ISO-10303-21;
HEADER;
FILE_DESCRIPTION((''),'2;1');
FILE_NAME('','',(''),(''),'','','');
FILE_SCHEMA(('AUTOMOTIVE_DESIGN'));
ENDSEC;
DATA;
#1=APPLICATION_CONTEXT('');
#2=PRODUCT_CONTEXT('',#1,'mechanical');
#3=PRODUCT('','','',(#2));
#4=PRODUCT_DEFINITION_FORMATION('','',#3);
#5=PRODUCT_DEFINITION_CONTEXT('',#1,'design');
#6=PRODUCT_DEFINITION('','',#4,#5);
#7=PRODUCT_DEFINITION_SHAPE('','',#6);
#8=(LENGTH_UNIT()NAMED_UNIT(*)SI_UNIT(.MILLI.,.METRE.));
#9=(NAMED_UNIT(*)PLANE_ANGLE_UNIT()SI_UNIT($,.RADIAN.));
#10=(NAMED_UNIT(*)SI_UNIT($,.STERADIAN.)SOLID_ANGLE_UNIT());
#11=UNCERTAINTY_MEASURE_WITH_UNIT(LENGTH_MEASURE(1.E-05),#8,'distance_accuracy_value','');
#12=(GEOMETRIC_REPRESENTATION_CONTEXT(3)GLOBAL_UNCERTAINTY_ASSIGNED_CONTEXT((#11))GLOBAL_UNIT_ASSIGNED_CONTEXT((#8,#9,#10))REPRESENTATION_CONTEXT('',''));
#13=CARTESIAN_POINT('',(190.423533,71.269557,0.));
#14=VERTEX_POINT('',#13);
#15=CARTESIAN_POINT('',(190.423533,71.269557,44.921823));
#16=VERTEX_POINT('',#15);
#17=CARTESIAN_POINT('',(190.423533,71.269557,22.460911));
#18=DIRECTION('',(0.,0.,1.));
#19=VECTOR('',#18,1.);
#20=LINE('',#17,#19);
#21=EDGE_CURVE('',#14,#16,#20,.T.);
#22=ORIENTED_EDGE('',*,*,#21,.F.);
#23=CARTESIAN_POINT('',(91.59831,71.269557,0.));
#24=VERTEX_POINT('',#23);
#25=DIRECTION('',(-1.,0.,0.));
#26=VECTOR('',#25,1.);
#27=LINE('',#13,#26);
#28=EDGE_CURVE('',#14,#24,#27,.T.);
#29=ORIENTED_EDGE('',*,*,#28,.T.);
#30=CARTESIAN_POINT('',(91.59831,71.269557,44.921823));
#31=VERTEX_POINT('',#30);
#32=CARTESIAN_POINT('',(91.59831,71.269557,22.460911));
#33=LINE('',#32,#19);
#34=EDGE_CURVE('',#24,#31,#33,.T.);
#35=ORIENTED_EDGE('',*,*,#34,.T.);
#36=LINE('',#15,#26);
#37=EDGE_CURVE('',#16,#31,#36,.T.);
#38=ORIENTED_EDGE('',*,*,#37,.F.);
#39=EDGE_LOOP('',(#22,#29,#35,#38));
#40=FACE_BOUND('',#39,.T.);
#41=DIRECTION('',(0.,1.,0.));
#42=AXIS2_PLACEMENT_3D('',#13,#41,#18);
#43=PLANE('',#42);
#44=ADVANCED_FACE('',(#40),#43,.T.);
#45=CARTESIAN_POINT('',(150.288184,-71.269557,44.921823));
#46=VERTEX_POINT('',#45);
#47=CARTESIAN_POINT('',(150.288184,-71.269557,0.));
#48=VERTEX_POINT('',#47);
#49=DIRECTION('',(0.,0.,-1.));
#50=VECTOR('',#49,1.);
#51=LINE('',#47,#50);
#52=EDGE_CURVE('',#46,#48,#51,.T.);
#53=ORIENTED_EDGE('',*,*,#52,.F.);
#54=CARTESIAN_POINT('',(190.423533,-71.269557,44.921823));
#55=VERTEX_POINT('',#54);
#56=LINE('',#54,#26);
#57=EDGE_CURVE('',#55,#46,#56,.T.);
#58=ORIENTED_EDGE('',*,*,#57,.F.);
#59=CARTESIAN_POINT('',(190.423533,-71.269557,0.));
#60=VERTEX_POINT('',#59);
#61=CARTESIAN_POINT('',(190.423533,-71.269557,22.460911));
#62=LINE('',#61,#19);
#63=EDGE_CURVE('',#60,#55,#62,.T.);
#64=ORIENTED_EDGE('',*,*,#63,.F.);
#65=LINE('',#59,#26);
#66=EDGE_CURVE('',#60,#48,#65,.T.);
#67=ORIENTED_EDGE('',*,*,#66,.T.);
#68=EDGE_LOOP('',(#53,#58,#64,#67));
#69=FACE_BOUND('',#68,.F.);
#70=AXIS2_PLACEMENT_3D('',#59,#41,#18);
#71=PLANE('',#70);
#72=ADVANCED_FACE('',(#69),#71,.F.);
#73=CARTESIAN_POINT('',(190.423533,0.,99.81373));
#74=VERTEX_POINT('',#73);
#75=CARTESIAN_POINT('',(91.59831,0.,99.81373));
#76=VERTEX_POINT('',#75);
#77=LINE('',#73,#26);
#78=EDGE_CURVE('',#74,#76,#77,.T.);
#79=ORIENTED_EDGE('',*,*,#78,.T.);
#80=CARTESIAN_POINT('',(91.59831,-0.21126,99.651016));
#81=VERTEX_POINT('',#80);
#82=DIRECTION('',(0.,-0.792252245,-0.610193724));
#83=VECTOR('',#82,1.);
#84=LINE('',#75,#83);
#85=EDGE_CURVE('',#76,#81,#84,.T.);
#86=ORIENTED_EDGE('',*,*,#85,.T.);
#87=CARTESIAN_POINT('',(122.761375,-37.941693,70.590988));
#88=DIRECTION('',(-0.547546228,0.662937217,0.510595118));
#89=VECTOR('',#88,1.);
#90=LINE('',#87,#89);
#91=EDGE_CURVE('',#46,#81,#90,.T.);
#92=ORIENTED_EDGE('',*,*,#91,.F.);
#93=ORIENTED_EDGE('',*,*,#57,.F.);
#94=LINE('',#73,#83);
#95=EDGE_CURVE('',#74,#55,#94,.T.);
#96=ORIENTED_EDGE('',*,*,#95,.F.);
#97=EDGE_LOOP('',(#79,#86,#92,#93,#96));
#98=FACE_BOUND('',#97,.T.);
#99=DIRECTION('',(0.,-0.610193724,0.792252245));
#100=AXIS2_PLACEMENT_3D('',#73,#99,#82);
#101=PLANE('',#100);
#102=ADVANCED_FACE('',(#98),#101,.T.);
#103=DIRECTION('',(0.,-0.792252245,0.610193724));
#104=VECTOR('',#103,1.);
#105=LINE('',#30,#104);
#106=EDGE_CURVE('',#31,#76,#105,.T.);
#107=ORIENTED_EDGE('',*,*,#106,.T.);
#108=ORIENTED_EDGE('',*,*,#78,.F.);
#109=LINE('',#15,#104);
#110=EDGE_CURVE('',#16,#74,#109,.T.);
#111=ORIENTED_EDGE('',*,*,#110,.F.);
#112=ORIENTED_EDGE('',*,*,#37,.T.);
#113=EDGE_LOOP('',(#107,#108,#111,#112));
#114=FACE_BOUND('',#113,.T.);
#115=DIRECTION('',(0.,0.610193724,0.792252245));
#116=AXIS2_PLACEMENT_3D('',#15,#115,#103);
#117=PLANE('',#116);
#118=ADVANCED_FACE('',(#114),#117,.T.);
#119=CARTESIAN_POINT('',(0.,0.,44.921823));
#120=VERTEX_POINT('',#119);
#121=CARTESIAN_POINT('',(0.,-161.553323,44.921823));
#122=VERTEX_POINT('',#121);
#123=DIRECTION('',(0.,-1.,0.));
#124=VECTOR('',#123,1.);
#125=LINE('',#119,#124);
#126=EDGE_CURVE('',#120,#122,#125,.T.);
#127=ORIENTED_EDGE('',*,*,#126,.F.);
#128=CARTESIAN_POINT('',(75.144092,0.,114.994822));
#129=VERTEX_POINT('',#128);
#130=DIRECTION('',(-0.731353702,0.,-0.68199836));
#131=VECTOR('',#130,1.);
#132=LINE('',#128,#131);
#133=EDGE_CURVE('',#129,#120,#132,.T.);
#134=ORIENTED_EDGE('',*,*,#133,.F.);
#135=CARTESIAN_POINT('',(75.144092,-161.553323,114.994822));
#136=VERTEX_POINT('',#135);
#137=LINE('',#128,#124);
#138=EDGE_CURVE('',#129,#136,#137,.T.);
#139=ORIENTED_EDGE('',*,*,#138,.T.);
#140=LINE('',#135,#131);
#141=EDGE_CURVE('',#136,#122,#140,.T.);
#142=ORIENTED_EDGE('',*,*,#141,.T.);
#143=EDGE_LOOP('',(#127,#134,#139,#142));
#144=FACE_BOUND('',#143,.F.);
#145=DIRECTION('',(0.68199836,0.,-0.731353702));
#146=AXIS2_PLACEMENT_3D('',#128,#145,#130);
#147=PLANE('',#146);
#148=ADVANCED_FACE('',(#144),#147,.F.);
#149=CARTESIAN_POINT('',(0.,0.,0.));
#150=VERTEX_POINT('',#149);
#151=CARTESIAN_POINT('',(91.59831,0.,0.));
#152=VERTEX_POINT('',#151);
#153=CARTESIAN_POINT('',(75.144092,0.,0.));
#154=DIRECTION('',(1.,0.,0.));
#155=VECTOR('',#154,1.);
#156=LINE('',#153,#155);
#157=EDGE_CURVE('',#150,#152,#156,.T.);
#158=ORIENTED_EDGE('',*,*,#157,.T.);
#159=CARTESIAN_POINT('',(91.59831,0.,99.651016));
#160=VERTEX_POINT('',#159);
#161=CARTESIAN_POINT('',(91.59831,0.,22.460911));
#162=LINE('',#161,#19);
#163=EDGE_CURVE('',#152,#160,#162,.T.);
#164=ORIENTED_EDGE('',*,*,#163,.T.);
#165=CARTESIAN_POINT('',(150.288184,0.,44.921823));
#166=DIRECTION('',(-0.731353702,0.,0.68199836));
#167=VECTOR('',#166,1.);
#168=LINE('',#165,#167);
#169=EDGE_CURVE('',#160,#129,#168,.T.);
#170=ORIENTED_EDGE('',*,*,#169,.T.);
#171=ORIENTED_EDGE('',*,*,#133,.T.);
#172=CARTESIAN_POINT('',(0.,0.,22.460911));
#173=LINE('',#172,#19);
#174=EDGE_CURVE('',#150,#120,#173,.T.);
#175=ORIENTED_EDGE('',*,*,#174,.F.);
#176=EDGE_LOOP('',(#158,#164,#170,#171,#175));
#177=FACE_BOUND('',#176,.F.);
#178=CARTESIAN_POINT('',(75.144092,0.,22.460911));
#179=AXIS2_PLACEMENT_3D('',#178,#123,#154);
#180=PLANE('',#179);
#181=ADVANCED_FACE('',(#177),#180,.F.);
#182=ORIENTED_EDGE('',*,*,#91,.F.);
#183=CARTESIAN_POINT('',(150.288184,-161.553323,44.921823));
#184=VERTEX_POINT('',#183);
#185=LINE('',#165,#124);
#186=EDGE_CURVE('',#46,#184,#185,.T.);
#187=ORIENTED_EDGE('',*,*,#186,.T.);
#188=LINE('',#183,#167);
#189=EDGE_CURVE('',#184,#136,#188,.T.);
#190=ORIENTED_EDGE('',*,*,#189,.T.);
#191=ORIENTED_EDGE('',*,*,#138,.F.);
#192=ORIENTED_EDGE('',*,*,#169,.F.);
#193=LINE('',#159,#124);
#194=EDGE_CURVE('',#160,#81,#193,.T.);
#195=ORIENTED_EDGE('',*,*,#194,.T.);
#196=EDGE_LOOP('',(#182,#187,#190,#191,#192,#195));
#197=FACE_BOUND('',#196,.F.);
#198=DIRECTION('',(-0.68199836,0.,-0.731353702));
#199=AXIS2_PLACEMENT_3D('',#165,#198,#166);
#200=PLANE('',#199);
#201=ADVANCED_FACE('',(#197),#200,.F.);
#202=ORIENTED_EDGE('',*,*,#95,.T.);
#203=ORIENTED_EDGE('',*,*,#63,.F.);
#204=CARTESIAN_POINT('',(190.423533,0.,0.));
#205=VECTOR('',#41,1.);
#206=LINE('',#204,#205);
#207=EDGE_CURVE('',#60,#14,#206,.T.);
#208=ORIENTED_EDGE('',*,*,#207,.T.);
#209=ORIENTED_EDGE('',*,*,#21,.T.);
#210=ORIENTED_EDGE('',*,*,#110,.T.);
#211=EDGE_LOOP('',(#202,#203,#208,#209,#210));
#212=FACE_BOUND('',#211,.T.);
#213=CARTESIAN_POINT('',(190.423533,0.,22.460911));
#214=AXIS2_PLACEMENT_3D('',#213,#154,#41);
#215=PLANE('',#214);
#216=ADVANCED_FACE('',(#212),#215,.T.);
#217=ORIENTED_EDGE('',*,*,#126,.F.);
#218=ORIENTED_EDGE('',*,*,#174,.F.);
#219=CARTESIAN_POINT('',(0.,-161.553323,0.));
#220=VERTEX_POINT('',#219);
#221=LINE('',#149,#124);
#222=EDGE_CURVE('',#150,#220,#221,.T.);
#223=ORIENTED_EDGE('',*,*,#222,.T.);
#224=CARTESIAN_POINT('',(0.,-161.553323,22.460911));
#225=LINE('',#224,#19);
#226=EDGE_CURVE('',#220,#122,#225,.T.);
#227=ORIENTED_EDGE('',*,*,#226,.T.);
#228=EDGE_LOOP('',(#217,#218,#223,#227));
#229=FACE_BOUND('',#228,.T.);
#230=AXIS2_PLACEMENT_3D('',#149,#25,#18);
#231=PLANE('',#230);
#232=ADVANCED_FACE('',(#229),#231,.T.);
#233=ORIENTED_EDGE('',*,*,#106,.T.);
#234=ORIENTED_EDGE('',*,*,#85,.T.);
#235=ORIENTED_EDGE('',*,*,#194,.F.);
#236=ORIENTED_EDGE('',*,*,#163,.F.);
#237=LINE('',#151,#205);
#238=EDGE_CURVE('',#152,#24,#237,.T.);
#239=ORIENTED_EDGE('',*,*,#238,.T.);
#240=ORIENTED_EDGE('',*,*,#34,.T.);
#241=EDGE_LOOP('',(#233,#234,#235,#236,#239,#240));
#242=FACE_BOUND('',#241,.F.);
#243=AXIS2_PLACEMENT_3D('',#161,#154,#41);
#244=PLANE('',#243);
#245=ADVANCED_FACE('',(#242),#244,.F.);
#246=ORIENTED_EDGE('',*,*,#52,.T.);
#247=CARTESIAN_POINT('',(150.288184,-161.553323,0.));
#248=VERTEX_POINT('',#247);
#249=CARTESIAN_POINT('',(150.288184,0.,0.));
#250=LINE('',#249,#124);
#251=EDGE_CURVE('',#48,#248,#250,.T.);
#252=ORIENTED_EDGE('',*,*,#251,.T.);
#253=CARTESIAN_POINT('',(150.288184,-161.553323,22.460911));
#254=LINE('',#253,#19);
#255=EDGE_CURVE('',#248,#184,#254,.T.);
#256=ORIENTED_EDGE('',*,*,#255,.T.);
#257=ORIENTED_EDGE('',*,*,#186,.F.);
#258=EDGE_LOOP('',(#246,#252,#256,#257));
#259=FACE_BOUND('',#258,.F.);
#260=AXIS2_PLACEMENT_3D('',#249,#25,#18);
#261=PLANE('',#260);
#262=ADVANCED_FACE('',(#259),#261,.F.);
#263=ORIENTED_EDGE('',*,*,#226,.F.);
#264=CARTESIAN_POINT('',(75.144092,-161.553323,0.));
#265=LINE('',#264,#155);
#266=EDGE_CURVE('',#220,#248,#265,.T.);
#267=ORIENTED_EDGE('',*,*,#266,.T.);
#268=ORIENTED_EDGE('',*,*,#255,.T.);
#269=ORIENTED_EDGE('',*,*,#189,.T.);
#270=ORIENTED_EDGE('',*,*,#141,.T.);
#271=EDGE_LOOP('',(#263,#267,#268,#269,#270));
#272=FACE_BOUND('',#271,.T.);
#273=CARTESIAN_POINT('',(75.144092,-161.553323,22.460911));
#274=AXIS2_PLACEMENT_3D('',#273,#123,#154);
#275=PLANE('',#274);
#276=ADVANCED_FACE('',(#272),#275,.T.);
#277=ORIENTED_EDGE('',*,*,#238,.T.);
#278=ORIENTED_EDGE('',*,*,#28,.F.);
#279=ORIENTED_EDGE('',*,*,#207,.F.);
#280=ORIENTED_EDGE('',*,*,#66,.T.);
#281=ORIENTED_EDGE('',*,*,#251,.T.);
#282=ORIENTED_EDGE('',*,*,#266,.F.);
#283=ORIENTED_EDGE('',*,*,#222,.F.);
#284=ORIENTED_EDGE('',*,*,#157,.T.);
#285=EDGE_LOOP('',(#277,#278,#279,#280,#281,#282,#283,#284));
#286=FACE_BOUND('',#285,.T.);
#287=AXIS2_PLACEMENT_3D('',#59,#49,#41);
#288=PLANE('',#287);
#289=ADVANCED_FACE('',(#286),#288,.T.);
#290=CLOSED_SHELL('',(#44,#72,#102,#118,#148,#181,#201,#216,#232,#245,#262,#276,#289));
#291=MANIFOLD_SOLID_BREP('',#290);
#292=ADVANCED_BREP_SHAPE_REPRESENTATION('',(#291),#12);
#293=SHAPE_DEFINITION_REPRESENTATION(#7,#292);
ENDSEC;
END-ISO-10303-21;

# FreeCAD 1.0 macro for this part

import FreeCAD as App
import Part
import Sketcher
Q = App.Units.Quantity

doc = App.newDocument("Part")
params = doc.addObject("Spreadsheet::Sheet", "Params")
for row, (alias, value) in enumerate([
    ("pad1_length", "161.553323 mm"),
    ("pad2_length", "98.825224 mm"),
], start=1):
    params.set(f"A{row}", alias)
    params.set(f"B{row}", "=" + value)
    params.setAlias(f"B{row}", alias)

body = doc.addObject("PartDesign::Body", "Body")

sketch1 = body.newObject("Sketcher::SketchObject", "Sketch")
sketch1.AttachmentSupport = (doc.getObject("XZ_Plane"), [""])
sketch1.MapMode = "FlatFace"
sketch1.addGeometry([
    Part.LineSegment(App.Vector(0, 45, 0), App.Vector(0, 0, 0)),
    Part.LineSegment(App.Vector(0, 0, 0), App.Vector(150, 0, 0)),
    Part.LineSegment(App.Vector(150, 0, 0), App.Vector(150, 45, 0)),
    Part.LineSegment(App.Vector(150, 45, 0), App.Vector(75, 115, 0)),
    Part.LineSegment(App.Vector(75, 115, 0), App.Vector(0, 45, 0)),
], False)
sketch1.addConstraint([
    Sketcher.Constraint("Coincident", 0, 2, 1, 1),
    Sketcher.Constraint("Coincident", 1, 2, 2, 1),
    Sketcher.Constraint("Coincident", 2, 2, 3, 1),
    Sketcher.Constraint("Coincident", 3, 2, 4, 1),
    Sketcher.Constraint("Coincident", 4, 2, 0, 1),
    Sketcher.Constraint("Vertical", 0),
    Sketcher.Constraint("Horizontal", 1),
    Sketcher.Constraint("Vertical", 2),
    Sketcher.Constraint("Coincident", 0, 2, -1, 1),
    Sketcher.Constraint("Horizontal", 2, 2, 4, 2),
    Sketcher.Constraint("Equal", 3, 4),
    Sketcher.Constraint("Angle", 3, Q("137 deg")),
    Sketcher.Constraint("DistanceY", 2, 2, 3, 2, 70.073),
    Sketcher.Constraint("DistanceY", 0, 2, 0, 1, 44.921823),
])
pad1 = body.newObject("PartDesign::Pad", "Pad")
pad1.Profile = sketch1
pad1.setExpression("Length", "Params.pad1_length")

sketch2 = body.newObject("Sketcher::SketchObject", "Sketch001")
sketch2.AttachmentSupport = (doc.getObject("YZ_Plane"), [""])
sketch2.MapMode = "FlatFace"
sketch2.AttachmentOffset = App.Placement(App.Vector(0, 0, 190.423533), App.Rotation())
sketch2.addGeometry([
    Part.LineSegment(App.Vector(-71, 45, 0), App.Vector(-71, 0, 0)),
    Part.LineSegment(App.Vector(-71, 0, 0), App.Vector(71, 0, 0)),
    Part.LineSegment(App.Vector(71, 0, 0), App.Vector(71, 45, 0)),
    Part.LineSegment(App.Vector(71, 45, 0), App.Vector(0, 100, 0)),
    Part.LineSegment(App.Vector(0, 100, 0), App.Vector(-71, 45, 0)),
], False)
sketch2.addConstraint([
    Sketcher.Constraint("Coincident", 0, 2, 1, 1),
    Sketcher.Constraint("Coincident", 1, 2, 2, 1),
    Sketcher.Constraint("Coincident", 2, 2, 3, 1),
    Sketcher.Constraint("Coincident", 3, 2, 4, 1),
    Sketcher.Constraint("Coincident", 4, 2, 0, 1),
    Sketcher.Constraint("Vertical", 0),
    Sketcher.Constraint("Horizontal", 1),
    Sketcher.Constraint("Vertical", 2),
    Sketcher.Constraint("Symmetric", 0, 2, 1, 2, -1, 1),
    Sketcher.Constraint("PointOnObject", 3, 2, -2),
    Sketcher.Constraint("Horizontal", 2, 2, 4, 2),
    Sketcher.Constraint("DistanceX", 1, 1, 1, 2, 142.539114),
    Sketcher.Constraint("DistanceY", 0, 2, 0, 1, 44.921823),
    Sketcher.Constraint("DistanceY", -1, 1, 3, 2, 99.81373),
])
pad2 = body.newObject("PartDesign::Pad", "Pad001")
pad2.Profile = sketch2
pad2.setExpression("Length", "Params.pad2_length")
pad2.Reversed = True

doc.recompute()
